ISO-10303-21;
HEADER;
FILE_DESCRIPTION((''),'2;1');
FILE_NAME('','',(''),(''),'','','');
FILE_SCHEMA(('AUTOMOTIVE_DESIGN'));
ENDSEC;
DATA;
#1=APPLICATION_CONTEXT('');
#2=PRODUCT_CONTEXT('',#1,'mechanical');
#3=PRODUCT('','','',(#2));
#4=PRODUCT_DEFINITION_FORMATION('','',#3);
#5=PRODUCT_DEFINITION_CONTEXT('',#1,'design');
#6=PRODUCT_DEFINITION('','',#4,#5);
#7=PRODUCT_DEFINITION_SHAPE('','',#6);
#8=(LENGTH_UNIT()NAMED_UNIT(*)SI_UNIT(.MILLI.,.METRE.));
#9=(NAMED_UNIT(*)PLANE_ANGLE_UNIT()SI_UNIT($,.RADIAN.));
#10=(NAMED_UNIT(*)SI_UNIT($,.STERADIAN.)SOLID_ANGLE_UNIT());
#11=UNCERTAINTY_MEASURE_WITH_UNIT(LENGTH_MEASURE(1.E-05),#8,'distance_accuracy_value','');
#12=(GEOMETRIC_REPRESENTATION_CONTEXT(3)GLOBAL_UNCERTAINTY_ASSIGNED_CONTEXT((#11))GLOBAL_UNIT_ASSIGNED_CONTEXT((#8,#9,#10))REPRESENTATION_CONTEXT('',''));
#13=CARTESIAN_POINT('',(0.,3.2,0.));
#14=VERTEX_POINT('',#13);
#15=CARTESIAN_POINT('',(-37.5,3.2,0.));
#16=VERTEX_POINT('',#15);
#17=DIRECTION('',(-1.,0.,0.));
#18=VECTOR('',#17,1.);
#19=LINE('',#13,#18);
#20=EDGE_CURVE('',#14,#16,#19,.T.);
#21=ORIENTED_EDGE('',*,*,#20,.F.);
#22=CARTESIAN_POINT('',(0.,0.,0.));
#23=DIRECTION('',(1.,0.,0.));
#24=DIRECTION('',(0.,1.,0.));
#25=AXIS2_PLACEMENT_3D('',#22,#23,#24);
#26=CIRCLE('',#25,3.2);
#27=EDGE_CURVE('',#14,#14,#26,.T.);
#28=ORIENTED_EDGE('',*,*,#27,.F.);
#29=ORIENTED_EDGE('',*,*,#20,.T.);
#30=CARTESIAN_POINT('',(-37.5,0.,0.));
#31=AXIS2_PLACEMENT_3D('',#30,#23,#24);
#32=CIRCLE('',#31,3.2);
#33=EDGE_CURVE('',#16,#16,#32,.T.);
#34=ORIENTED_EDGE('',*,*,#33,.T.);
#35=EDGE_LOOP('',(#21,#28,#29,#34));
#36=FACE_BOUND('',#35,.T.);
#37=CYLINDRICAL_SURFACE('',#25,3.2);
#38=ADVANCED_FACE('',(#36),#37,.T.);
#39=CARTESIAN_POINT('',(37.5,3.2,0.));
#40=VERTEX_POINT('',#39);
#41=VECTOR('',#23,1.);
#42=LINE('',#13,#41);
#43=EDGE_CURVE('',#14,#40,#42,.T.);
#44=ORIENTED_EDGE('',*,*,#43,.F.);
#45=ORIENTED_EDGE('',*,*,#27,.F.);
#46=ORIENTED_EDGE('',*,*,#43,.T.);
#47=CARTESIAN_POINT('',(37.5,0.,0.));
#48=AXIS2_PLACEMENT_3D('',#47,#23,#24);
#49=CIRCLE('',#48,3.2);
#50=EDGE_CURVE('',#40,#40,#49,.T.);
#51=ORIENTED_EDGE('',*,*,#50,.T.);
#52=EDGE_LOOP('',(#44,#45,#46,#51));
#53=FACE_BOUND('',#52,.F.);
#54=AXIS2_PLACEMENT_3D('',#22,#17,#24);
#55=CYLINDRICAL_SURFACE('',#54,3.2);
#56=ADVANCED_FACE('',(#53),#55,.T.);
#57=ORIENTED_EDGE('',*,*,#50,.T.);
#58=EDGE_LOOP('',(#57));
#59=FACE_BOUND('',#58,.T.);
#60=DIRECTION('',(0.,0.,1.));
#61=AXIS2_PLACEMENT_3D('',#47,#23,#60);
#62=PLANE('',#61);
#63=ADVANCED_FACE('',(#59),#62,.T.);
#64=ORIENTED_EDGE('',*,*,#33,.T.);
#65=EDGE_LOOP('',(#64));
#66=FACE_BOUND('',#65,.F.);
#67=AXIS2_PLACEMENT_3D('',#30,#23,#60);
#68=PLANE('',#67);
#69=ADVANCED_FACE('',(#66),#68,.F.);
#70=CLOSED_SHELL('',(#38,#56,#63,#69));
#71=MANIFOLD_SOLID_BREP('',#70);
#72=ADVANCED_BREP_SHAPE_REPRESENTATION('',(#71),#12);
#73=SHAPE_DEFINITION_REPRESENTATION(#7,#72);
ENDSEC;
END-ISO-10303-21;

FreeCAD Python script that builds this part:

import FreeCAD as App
import Part
import Sketcher

V = App.Vector
Q = App.Units.Quantity

doc = App.newDocument("Part")
body = doc.addObject("PartDesign::Body", "Body")

# Sketch on YZ plane
sketch1 = doc.addObject("Sketcher::SketchObject", "Sketch")
body.addObject(sketch1)
sketch1.AttachmentSupport = (doc.YZ_Plane, [""])
sketch1.MapMode = "FlatFace"
sketch1.addGeometry(Part.Circle(V(0, 0, 0), V(0, 0, 1), 3.2), False)
sketch1.addConstraint([
    Sketcher.Constraint("Coincident", 0, 3, -1, 1),
    Sketcher.Constraint("Diameter", 0, Q("6.4 mm")),
])
pad1 = doc.addObject("PartDesign::Pad", "Pad")
body.addObject(pad1)
pad1.Profile = sketch1
pad1.Length = 75
pad1.Midplane = True

doc.recompute()
